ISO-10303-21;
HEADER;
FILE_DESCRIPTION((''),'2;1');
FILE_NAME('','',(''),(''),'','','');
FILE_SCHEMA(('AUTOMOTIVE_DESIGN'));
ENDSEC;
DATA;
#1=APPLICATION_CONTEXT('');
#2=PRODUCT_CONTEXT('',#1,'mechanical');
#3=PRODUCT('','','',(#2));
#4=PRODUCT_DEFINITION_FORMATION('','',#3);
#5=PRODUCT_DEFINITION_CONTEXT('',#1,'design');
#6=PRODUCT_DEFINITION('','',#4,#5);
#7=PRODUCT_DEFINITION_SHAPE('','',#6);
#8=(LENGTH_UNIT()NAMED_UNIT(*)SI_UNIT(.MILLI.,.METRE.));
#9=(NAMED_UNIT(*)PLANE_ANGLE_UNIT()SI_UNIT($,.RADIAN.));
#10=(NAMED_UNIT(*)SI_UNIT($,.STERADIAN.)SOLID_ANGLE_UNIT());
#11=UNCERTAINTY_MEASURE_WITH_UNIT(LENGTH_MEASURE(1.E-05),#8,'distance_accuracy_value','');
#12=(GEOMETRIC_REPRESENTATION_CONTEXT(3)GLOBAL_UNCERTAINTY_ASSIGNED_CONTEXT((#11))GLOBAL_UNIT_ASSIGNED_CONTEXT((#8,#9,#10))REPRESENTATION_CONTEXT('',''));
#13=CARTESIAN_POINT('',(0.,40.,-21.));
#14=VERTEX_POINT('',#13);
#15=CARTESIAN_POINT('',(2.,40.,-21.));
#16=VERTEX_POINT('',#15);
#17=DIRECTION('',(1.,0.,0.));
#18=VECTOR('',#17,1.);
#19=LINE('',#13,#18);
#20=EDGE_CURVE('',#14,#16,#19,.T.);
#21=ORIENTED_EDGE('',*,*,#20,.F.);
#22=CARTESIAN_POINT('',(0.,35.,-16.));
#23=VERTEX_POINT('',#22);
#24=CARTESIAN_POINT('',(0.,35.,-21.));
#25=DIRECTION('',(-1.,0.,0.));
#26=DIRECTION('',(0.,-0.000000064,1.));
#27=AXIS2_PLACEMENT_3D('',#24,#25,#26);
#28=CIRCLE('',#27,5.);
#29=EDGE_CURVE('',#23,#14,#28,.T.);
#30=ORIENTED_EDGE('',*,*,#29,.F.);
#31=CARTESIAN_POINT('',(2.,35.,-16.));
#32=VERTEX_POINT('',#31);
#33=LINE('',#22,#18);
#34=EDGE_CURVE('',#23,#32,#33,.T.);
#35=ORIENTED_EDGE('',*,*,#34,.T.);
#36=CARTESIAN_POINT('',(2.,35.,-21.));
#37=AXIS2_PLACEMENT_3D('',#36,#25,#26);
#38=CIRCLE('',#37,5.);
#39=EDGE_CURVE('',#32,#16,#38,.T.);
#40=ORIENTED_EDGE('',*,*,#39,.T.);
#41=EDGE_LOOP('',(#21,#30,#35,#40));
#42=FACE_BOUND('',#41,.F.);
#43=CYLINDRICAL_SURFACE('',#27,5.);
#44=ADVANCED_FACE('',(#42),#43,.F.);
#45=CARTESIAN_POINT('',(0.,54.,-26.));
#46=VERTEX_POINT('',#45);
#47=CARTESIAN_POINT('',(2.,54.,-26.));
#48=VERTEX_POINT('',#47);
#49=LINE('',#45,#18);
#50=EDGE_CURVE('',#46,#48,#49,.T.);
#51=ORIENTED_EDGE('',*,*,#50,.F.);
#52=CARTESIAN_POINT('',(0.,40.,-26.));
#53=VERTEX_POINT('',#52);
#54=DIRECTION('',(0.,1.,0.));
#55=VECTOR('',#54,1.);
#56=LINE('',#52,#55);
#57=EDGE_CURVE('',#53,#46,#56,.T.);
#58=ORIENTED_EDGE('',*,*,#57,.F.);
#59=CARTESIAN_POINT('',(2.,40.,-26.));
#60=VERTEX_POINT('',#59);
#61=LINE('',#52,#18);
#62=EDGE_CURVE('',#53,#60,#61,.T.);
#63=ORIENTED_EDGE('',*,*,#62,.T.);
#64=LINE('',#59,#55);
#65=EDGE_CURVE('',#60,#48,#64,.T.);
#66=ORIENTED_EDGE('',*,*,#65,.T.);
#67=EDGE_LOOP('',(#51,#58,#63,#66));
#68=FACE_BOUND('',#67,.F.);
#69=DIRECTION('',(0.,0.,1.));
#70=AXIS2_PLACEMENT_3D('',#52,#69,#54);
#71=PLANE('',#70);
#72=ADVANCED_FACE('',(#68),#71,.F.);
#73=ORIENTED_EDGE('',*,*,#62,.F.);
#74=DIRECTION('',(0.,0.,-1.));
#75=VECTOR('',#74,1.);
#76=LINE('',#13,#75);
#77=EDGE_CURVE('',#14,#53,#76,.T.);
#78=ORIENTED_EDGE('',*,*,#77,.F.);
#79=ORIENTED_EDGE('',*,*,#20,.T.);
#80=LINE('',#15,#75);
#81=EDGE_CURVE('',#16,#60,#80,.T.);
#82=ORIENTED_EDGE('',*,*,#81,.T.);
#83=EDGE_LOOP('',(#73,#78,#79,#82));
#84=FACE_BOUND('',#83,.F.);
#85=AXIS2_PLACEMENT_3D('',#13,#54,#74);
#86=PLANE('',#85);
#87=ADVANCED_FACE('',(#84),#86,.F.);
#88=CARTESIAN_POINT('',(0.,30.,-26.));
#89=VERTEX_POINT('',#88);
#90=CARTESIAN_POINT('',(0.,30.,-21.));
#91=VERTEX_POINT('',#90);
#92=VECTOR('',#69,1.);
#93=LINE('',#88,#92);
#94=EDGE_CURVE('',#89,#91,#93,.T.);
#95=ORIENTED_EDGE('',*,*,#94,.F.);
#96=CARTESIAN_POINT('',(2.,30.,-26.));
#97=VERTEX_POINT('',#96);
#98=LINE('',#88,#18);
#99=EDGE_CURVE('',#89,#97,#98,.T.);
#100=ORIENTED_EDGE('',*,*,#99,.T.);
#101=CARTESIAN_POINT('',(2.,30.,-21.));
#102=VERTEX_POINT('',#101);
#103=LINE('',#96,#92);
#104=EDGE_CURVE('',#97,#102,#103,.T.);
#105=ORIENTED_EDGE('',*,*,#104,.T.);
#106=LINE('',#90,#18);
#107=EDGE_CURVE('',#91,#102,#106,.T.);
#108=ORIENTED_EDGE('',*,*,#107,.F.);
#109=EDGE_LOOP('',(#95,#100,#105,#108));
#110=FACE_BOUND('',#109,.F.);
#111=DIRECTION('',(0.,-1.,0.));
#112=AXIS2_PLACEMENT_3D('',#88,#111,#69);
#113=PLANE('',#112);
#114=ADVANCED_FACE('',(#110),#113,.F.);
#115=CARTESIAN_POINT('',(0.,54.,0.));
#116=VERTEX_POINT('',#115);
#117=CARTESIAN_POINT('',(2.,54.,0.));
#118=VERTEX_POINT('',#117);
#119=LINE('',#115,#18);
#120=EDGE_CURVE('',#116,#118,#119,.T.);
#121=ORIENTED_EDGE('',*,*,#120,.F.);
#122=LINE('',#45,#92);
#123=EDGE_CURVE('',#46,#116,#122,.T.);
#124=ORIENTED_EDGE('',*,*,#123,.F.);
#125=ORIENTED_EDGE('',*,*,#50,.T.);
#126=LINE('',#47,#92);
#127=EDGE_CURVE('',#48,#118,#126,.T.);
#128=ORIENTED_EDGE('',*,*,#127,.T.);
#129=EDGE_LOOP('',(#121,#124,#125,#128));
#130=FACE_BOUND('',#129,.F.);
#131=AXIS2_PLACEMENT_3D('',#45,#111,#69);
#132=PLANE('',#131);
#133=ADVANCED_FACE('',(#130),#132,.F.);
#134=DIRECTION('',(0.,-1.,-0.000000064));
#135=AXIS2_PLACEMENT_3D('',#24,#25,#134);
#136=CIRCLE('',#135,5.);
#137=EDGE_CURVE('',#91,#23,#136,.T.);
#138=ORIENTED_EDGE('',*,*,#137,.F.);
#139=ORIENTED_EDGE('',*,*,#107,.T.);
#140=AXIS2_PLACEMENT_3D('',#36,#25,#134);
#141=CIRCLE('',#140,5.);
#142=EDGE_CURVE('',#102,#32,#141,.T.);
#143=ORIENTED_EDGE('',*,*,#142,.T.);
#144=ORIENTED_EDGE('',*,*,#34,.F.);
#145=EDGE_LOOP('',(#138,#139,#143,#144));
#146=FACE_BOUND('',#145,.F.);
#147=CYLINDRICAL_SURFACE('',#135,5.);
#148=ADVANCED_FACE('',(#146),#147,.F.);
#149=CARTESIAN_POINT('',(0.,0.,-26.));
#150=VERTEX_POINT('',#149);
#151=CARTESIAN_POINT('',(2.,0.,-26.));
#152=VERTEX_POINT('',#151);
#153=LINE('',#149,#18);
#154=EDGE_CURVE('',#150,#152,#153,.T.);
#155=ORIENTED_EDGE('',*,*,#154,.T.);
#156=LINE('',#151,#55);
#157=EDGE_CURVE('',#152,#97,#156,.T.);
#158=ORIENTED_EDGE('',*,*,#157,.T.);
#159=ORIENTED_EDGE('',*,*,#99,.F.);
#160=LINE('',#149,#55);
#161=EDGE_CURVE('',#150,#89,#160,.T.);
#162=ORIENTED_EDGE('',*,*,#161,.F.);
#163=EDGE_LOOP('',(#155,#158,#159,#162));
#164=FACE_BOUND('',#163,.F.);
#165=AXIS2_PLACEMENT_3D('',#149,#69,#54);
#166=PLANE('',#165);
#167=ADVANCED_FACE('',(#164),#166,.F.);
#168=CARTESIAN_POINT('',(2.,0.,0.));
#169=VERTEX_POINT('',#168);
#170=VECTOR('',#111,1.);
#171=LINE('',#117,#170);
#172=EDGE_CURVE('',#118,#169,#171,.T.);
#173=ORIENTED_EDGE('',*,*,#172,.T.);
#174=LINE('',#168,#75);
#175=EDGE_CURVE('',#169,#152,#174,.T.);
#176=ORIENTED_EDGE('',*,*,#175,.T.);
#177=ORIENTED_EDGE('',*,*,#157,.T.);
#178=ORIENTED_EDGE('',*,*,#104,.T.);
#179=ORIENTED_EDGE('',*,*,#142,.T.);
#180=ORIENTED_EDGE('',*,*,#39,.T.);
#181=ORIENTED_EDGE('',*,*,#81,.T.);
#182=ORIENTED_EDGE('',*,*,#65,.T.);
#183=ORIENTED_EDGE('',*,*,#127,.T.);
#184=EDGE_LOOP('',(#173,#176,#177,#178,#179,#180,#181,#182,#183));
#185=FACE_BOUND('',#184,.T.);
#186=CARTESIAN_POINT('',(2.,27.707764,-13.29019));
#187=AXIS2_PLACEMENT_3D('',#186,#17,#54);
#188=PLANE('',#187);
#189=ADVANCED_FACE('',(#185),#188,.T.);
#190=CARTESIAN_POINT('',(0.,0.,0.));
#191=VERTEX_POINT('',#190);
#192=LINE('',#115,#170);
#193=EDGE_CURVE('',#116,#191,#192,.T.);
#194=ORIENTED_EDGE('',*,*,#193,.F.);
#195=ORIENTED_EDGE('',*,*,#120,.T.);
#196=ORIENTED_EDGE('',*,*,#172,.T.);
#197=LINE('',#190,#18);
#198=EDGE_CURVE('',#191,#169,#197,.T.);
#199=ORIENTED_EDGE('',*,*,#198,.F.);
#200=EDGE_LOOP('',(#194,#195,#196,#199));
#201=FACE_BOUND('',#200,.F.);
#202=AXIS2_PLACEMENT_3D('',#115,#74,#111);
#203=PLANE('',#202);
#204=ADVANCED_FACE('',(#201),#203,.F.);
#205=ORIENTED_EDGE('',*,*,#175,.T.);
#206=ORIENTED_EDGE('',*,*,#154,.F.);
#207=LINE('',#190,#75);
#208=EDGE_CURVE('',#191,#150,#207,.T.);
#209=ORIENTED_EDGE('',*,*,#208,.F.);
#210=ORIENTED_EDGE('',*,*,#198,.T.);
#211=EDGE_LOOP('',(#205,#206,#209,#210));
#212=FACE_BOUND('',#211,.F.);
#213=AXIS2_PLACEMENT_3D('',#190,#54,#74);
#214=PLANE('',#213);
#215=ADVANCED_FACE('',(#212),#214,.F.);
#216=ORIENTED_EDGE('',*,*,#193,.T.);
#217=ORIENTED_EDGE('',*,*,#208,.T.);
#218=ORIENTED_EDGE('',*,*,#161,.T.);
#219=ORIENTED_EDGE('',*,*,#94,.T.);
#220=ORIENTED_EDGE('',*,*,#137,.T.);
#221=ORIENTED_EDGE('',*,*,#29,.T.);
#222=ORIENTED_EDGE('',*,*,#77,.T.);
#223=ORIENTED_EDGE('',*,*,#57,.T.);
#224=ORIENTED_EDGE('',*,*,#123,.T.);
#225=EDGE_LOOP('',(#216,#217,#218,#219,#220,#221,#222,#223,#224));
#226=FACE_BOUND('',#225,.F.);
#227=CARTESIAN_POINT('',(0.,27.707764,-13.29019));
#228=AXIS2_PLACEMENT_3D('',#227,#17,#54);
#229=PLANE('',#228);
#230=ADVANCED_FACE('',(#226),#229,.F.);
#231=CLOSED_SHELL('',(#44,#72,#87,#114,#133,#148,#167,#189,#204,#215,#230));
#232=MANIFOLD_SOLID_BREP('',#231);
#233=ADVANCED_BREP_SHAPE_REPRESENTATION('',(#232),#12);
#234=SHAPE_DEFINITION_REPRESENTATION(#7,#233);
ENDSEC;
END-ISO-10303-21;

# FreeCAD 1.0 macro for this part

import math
import FreeCAD as App
import Part
import Sketcher

V = App.Vector

doc = App.newDocument("Part")
body = doc.addObject("PartDesign::Body", "Body")

sketch1 = body.newObject("Sketcher::SketchObject", "Sketch")
sketch1.AttachmentSupport = (doc.getObject("YZ_Plane"), [""])
sketch1.MapMode = "FlatFace"
sketch1.addGeometry(Part.LineSegment(V(54, 0, 0), V(0, 0, 0)), False)
sketch1.addGeometry(Part.LineSegment(V(0, 0, 0), V(0, -26, 0)), False)
sketch1.addGeometry(Part.LineSegment(V(0, -26, 0), V(30, -26, 0)), False)
sketch1.addGeometry(Part.LineSegment(V(30, -26, 0), V(30, -21, 0)), False)
sketch1.addGeometry(Part.ArcOfCircle(Part.Circle(V(35, -21, 0), V(0, 0, 1), 5), math.radians(90), math.radians(180)), False)
sketch1.addGeometry(Part.ArcOfCircle(Part.Circle(V(35, -21, 0), V(0, 0, 1), 5), math.radians(0), math.radians(90)), False)
sketch1.addGeometry(Part.LineSegment(V(40, -21, 0), V(40, -26, 0)), False)
sketch1.addGeometry(Part.LineSegment(V(40, -26, 0), V(54, -26, 0)), False)
sketch1.addGeometry(Part.LineSegment(V(54, -26, 0), V(54, 0, 0)), False)
sketch1.addConstraint(Sketcher.Constraint("Coincident", 0, 2, 1, 1))
sketch1.addConstraint(Sketcher.Constraint("Coincident", 1, 2, 2, 1))
sketch1.addConstraint(Sketcher.Constraint("Coincident", 2, 2, 3, 1))
sketch1.addConstraint(Sketcher.Constraint("Tangent", 3, 2, 4, 2))
sketch1.addConstraint(Sketcher.Constraint("Tangent", 4, 1, 5, 2))
sketch1.addConstraint(Sketcher.Constraint("Tangent", 5, 1, 6, 1))
sketch1.addConstraint(Sketcher.Constraint("Coincident", 6, 2, 7, 1))
sketch1.addConstraint(Sketcher.Constraint("Coincident", 7, 2, 8, 1))
sketch1.addConstraint(Sketcher.Constraint("Coincident", 8, 2, 0, 1))
sketch1.addConstraint(Sketcher.Constraint("Horizontal", 0))
sketch1.addConstraint(Sketcher.Constraint("Vertical", 1))
sketch1.addConstraint(Sketcher.Constraint("Horizontal", 2))
sketch1.addConstraint(Sketcher.Constraint("Vertical", 3))
sketch1.addConstraint(Sketcher.Constraint("Vertical", 6))
sketch1.addConstraint(Sketcher.Constraint("Horizontal", 7))
sketch1.addConstraint(Sketcher.Constraint("Vertical", 8))
sketch1.addConstraint(Sketcher.Constraint("Coincident", 0, 2, -1, 1))
sketch1.addConstraint(Sketcher.Constraint("Equal", 4, 5))
sketch1.addConstraint(Sketcher.Constraint("Horizontal", 2, 2, 6, 2))
sketch1.addConstraint(Sketcher.Constraint("Vertical", 5, 3, 4, 1))
sketch1.addConstraint(Sketcher.Constraint("Radius", 4, 5.0))
sketch1.addConstraint(Sketcher.Constraint("DistanceX", 0, 2, 0, 1, 54.0))
sketch1.addConstraint(Sketcher.Constraint("DistanceX", 2, 1, 2, 2, 30.0))
sketch1.addConstraint(Sketcher.Constraint("DistanceY", 1, 2, 1, 1, 26.0))
sketch1.addConstraint(Sketcher.Constraint("DistanceY", 3, 1, 3, 2, 5.0))
pad1 = body.newObject("PartDesign::Pad", "Pad")
pad1.Profile = sketch1
pad1.Length = 2

doc.recompute()
